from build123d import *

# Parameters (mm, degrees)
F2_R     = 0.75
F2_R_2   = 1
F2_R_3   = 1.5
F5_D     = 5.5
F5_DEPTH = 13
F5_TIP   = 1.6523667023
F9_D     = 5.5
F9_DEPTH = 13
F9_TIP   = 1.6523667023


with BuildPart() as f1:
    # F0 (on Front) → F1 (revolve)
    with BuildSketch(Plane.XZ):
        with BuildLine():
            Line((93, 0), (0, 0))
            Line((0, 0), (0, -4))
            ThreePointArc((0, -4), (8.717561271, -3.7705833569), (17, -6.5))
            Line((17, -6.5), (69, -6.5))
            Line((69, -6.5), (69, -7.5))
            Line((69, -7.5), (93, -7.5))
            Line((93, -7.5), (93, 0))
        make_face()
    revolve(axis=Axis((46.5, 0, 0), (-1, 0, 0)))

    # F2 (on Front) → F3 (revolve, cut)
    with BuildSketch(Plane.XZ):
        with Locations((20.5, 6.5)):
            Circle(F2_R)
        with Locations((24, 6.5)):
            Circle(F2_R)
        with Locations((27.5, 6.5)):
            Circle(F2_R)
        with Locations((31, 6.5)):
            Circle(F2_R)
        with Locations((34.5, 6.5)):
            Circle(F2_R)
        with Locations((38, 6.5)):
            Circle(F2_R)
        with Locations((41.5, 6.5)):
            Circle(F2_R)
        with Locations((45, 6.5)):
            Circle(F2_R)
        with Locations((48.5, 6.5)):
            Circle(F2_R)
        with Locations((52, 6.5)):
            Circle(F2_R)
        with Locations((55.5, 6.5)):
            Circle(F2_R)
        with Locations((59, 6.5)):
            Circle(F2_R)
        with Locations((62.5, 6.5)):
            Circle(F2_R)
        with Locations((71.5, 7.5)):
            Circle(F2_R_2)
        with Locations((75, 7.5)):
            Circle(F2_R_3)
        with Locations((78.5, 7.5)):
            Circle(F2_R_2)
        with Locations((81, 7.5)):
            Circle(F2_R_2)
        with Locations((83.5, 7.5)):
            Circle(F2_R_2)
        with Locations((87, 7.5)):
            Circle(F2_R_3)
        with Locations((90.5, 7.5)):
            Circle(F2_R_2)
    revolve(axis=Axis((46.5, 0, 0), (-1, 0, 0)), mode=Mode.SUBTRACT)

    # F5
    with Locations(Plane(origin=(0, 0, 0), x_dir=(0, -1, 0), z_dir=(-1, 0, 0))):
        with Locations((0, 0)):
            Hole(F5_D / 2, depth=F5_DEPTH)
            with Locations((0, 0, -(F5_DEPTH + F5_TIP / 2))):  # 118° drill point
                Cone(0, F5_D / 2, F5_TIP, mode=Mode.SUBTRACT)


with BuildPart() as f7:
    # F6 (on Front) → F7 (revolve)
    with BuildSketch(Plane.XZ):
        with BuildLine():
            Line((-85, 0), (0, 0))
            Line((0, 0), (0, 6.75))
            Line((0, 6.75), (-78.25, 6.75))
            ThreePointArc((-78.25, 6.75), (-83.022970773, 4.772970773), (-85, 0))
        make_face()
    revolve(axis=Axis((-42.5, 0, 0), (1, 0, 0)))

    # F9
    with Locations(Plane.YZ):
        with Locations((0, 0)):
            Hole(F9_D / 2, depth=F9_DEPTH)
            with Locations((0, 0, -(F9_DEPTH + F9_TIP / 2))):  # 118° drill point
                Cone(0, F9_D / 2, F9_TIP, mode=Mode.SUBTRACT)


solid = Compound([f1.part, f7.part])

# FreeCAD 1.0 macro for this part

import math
import FreeCAD as App
import Part
import Sketcher

V = App.Vector

doc = App.newDocument("Part")
body = doc.addObject("PartDesign::Body", "Body")

sketch1 = body.newObject("Sketcher::SketchObject", "Sketch")
sketch1.AttachmentSupport = (doc.getObject("XZ_Plane"), [""])
sketch1.MapMode = "FlatFace"
sketch1.addGeometry([
    Part.LineSegment(V(93, 0, 0), V(0, 0, 0)),
    Part.LineSegment(V(0, 0, 0), V(0, -4, 0)),
    Part.ArcOfCircle(Part.Circle(V(5.017838, -28.9287, 0), V(0, 0, 1), 25.4287), math.radians(61.887376), math.radians(101.380851)),
    Part.LineSegment(V(17, -6.5, 0), V(69, -6.5, 0)),
    Part.LineSegment(V(69, -6.5, 0), V(69, -7.5, 0)),
    Part.LineSegment(V(69, -7.5, 0), V(93, -7.5, 0)),
    Part.LineSegment(V(93, -7.5, 0), V(93, 0, 0)),
], False)
sketch1.addConstraint([
    Sketcher.Constraint("Coincident", 0, 2, 1, 1),
    Sketcher.Constraint("Coincident", 1, 2, 2, 2),
    Sketcher.Constraint("Coincident", 2, 1, 3, 1),
    Sketcher.Constraint("Coincident", 3, 2, 4, 1),
    Sketcher.Constraint("Coincident", 4, 2, 5, 1),
    Sketcher.Constraint("Coincident", 5, 2, 6, 1),
    Sketcher.Constraint("Coincident", 6, 2, 0, 1),
    Sketcher.Constraint("Horizontal", 0),
    Sketcher.Constraint("Vertical", 1),
    Sketcher.Constraint("Horizontal", 3),
    Sketcher.Constraint("Vertical", 4),
    Sketcher.Constraint("Horizontal", 5),
    Sketcher.Constraint("Vertical", 6),
    Sketcher.Constraint("Coincident", 0, 2, -1, 1),
    Sketcher.Constraint("DistanceX", 0, 2, 0, 1, 93.0),
    Sketcher.Constraint("DistanceX", 3, 1, 3, 2, 52.0),
    Sketcher.Constraint("DistanceX", 5, 1, 5, 2, 24.0),
    Sketcher.Constraint("DistanceY", 1, 2, 1, 1, 4.0),
    Sketcher.Constraint("DistanceY", 4, 2, 4, 1, 1.0),
    Sketcher.Constraint("DistanceY", 6, 1, 6, 2, 7.5),
    Sketcher.Constraint("Radius", 2, 25.4287),
])
revolution = body.newObject("PartDesign::Revolution", "Revolution")
revolution.Profile = sketch1
revolution.ReferenceAxis = (sketch1, ["H_Axis"])
revolution.Angle = 360

sketch2 = body.newObject("Sketcher::SketchObject", "Sketch001")
sketch2.AttachmentSupport = (doc.getObject("XZ_Plane"), [""])
sketch2.MapMode = "FlatFace"
sketch2.addGeometry([
    Part.Circle(V(20.5, 6.5, 0), V(0, 0, 1), 0.75),
    Part.Circle(V(24, 6.5, 0), V(0, 0, 1), 0.75),
    Part.Circle(V(27.5, 6.5, 0), V(0, 0, 1), 0.75),
    Part.Circle(V(31, 6.5, 0), V(0, 0, 1), 0.75),
    Part.Circle(V(34.5, 6.5, 0), V(0, 0, 1), 0.75),
    Part.Circle(V(38, 6.5, 0), V(0, 0, 1), 0.75),
    Part.Circle(V(41.5, 6.5, 0), V(0, 0, 1), 0.75),
    Part.Circle(V(45, 6.5, 0), V(0, 0, 1), 0.75),
    Part.Circle(V(48.5, 6.5, 0), V(0, 0, 1), 0.75),
    Part.Circle(V(52, 6.5, 0), V(0, 0, 1), 0.75),
    Part.Circle(V(55.5, 6.5, 0), V(0, 0, 1), 0.75),
    Part.Circle(V(59, 6.5, 0), V(0, 0, 1), 0.75),
    Part.Circle(V(62.5, 6.5, 0), V(0, 0, 1), 0.75),
    Part.Circle(V(71.5, 7.5, 0), V(0, 0, 1), 1),
    Part.Circle(V(75, 7.5, 0), V(0, 0, 1), 1.5),
    Part.Circle(V(78.5, 7.5, 0), V(0, 0, 1), 1),
    Part.Circle(V(81, 7.5, 0), V(0, 0, 1), 1),
    Part.Circle(V(83.5, 7.5, 0), V(0, 0, 1), 1),
    Part.Circle(V(87, 7.5, 0), V(0, 0, 1), 1.5),
    Part.Circle(V(90.5, 7.5, 0), V(0, 0, 1), 1),
], False)
sketch2.addConstraint([
    Sketcher.Constraint("Equal", 0, 1),
    Sketcher.Constraint("Equal", 1, 2),
    Sketcher.Constraint("Equal", 2, 3),
    Sketcher.Constraint("Equal", 3, 4),
    Sketcher.Constraint("Equal", 4, 5),
    Sketcher.Constraint("Equal", 5, 6),
    Sketcher.Constraint("Equal", 6, 7),
    Sketcher.Constraint("Equal", 7, 8),
    Sketcher.Constraint("Equal", 8, 9),
    Sketcher.Constraint("Equal", 9, 10),
    Sketcher.Constraint("Equal", 10, 11),
    Sketcher.Constraint("Equal", 11, 12),
    Sketcher.Constraint("Equal", 13, 15),
    Sketcher.Constraint("Equal", 15, 16),
    Sketcher.Constraint("Equal", 16, 17),
    Sketcher.Constraint("Equal", 14, 18),
    Sketcher.Constraint("Equal", 17, 19),
    Sketcher.Constraint("Horizontal", 0, 3, 1, 3),
    Sketcher.Constraint("Horizontal", 1, 3, 2, 3),
    Sketcher.Constraint("Horizontal", 2, 3, 3, 3),
    Sketcher.Constraint("Horizontal", 3, 3, 4, 3),
    Sketcher.Constraint("Horizontal", 4, 3, 5, 3),
    Sketcher.Constraint("Horizontal", 5, 3, 6, 3),
    Sketcher.Constraint("Horizontal", 6, 3, 7, 3),
    Sketcher.Constraint("Horizontal", 7, 3, 8, 3),
    Sketcher.Constraint("Horizontal", 8, 3, 9, 3),
    Sketcher.Constraint("Horizontal", 9, 3, 10, 3),
    Sketcher.Constraint("Horizontal", 10, 3, 11, 3),
    Sketcher.Constraint("Horizontal", 11, 3, 12, 3),
    Sketcher.Constraint("Horizontal", 13, 3, 14, 3),
    Sketcher.Constraint("Horizontal", 14, 3, 15, 3),
    Sketcher.Constraint("Horizontal", 15, 3, 16, 3),
    Sketcher.Constraint("Horizontal", 16, 3, 17, 3),
    Sketcher.Constraint("Horizontal", 17, 3, 18, 3),
    Sketcher.Constraint("Horizontal", 18, 3, 19, 3),
    Sketcher.Constraint("Diameter", 13, 2.0),
    Sketcher.Constraint("Diameter", 14, 3.0),
    Sketcher.Constraint("Diameter", 0, 1.5),
    Sketcher.Constraint("DistanceX", -1, 1, 1, 3, 24.0),
    Sketcher.Constraint("DistanceX", -1, 1, 3, 3, 31.0),
    Sketcher.Constraint("DistanceX", -1, 1, 5, 3, 38.0),
    Sketcher.Constraint("DistanceX", -1, 1, 7, 3, 45.0),
    Sketcher.Constraint("DistanceX", -1, 1, 9, 3, 52.0),
    Sketcher.Constraint("DistanceX", -1, 1, 11, 3, 59.0),
    Sketcher.Constraint("DistanceX", -1, 1, 14, 3, 75.0),
    Sketcher.Constraint("DistanceX", -1, 1, 16, 3, 81.0),
    Sketcher.Constraint("DistanceX", -1, 1, 18, 3, 87.0),
    Sketcher.Constraint("DistanceX", 0, 3, 2, 3, 7.0),
    Sketcher.Constraint("DistanceX", 2, 3, 4, 3, 7.0),
    Sketcher.Constraint("DistanceX", 4, 3, 6, 3, 7.0),
    Sketcher.Constraint("DistanceX", 6, 3, 8, 3, 7.0),
    Sketcher.Constraint("DistanceX", 8, 3, 10, 3, 7.0),
    Sketcher.Constraint("DistanceX", 10, 3, 12, 3, 7.0),
    Sketcher.Constraint("DistanceX", 12, 3, 13, 3, 9.0),
    Sketcher.Constraint("DistanceY", 12, 3, 13, 3, 1.0),
    Sketcher.Constraint("DistanceX", 13, 3, 15, 3, 7.0),
    Sketcher.Constraint("DistanceX", 15, 3, 17, 3, 5.0),
    Sketcher.Constraint("DistanceX", 17, 3, 19, 3, 7.0),
    Sketcher.Constraint("DistanceX", -1, 1, 0, 3, 20.5),
    Sketcher.Constraint("DistanceY", -1, 1, 0, 3, 6.5),
])
groove = body.newObject("PartDesign::Groove", "Groove")
groove.Profile = sketch2
groove.ReferenceAxis = (sketch2, ["H_Axis"])
groove.Angle = 360

sketch3 = body.newObject("Sketcher::SketchObject", "Sketch002")
sketch3.AttachmentSupport = (doc.getObject("YZ_Plane"), [""])
sketch3.MapMode = "FlatFace"
sketch3.addGeometry(Part.Circle(V(0, 0, 0), V(0, 0, 1), 2.75), False)
sketch3.addConstraint([
    Sketcher.Constraint("Coincident", 0, 3, -1, 1),
    Sketcher.Constraint("Diameter", 0, 5.5),
])
doc.recompute()
hole = body.newObject("PartDesign::Hole", "Hole")
hole.Profile = sketch3
hole.ThreadType = "None"
hole.Diameter = 5.5
hole.DepthType = "Dimension"
hole.Depth = 13
hole.DrillPoint = "Angled"
hole.DrillPointAngle = 118
hole.Reversed = True
body2 = doc.addObject("PartDesign::Body", "Body001")

sketch4 = body2.newObject("Sketcher::SketchObject", "Sketch003")
sketch4.AttachmentSupport = (doc.getObject("XZ_Plane001"), [""])
sketch4.MapMode = "FlatFace"
sketch4.addGeometry([
    Part.LineSegment(V(-85, 0, 0), V(0, 0, 0)),
    Part.LineSegment(V(0, 0, 0), V(0, 6.75, 0)),
    Part.LineSegment(V(0, 6.75, 0), V(-78.25, 6.75, 0)),
    Part.ArcOfCircle(Part.Circle(V(-78.25, 0, 0), V(0, 0, 1), 6.75), math.radians(90), math.radians(180)),
], False)
sketch4.addConstraint([
    Sketcher.Constraint("Coincident", 0, 2, 1, 1),
    Sketcher.Constraint("Coincident", 1, 2, 2, 1),
    Sketcher.Constraint("Tangent", 2, 2, 3, 1),
    Sketcher.Constraint("Coincident", 3, 2, 0, 1),
    Sketcher.Constraint("Horizontal", 0),
    Sketcher.Constraint("Vertical", 1),
    Sketcher.Constraint("Horizontal", 2),
    Sketcher.Constraint("Coincident", 0, 2, -1, 1),
    Sketcher.Constraint("PointOnObject", 3, 3, -1),
    Sketcher.Constraint("DistanceX", 0, 1, 0, 2, 85.0),
    Sketcher.Constraint("Radius", 3, 6.75),
])
revolution2 = body2.newObject("PartDesign::Revolution", "Revolution001")
revolution2.Profile = sketch4
revolution2.ReferenceAxis = (sketch4, ["H_Axis"])
revolution2.Angle = 360

sketch5 = body2.newObject("Sketcher::SketchObject", "Sketch004")
sketch5.AttachmentSupport = (doc.getObject("YZ_Plane001"), [""])
sketch5.MapMode = "FlatFace"
sketch5.addGeometry(Part.Circle(V(0, 0, 0), V(0, 0, 1), 2.75), False)
sketch5.addConstraint([
    Sketcher.Constraint("Coincident", 0, 3, -1, 1),
    Sketcher.Constraint("Diameter", 0, 5.5),
])
doc.recompute()
hole2 = body2.newObject("PartDesign::Hole", "Hole001")
hole2.Profile = sketch5
hole2.ThreadType = "None"
hole2.Diameter = 5.5
hole2.DepthType = "Dimension"
hole2.Depth = 13
hole2.DrillPoint = "Angled"
hole2.DrillPointAngle = 118

doc.recompute()
